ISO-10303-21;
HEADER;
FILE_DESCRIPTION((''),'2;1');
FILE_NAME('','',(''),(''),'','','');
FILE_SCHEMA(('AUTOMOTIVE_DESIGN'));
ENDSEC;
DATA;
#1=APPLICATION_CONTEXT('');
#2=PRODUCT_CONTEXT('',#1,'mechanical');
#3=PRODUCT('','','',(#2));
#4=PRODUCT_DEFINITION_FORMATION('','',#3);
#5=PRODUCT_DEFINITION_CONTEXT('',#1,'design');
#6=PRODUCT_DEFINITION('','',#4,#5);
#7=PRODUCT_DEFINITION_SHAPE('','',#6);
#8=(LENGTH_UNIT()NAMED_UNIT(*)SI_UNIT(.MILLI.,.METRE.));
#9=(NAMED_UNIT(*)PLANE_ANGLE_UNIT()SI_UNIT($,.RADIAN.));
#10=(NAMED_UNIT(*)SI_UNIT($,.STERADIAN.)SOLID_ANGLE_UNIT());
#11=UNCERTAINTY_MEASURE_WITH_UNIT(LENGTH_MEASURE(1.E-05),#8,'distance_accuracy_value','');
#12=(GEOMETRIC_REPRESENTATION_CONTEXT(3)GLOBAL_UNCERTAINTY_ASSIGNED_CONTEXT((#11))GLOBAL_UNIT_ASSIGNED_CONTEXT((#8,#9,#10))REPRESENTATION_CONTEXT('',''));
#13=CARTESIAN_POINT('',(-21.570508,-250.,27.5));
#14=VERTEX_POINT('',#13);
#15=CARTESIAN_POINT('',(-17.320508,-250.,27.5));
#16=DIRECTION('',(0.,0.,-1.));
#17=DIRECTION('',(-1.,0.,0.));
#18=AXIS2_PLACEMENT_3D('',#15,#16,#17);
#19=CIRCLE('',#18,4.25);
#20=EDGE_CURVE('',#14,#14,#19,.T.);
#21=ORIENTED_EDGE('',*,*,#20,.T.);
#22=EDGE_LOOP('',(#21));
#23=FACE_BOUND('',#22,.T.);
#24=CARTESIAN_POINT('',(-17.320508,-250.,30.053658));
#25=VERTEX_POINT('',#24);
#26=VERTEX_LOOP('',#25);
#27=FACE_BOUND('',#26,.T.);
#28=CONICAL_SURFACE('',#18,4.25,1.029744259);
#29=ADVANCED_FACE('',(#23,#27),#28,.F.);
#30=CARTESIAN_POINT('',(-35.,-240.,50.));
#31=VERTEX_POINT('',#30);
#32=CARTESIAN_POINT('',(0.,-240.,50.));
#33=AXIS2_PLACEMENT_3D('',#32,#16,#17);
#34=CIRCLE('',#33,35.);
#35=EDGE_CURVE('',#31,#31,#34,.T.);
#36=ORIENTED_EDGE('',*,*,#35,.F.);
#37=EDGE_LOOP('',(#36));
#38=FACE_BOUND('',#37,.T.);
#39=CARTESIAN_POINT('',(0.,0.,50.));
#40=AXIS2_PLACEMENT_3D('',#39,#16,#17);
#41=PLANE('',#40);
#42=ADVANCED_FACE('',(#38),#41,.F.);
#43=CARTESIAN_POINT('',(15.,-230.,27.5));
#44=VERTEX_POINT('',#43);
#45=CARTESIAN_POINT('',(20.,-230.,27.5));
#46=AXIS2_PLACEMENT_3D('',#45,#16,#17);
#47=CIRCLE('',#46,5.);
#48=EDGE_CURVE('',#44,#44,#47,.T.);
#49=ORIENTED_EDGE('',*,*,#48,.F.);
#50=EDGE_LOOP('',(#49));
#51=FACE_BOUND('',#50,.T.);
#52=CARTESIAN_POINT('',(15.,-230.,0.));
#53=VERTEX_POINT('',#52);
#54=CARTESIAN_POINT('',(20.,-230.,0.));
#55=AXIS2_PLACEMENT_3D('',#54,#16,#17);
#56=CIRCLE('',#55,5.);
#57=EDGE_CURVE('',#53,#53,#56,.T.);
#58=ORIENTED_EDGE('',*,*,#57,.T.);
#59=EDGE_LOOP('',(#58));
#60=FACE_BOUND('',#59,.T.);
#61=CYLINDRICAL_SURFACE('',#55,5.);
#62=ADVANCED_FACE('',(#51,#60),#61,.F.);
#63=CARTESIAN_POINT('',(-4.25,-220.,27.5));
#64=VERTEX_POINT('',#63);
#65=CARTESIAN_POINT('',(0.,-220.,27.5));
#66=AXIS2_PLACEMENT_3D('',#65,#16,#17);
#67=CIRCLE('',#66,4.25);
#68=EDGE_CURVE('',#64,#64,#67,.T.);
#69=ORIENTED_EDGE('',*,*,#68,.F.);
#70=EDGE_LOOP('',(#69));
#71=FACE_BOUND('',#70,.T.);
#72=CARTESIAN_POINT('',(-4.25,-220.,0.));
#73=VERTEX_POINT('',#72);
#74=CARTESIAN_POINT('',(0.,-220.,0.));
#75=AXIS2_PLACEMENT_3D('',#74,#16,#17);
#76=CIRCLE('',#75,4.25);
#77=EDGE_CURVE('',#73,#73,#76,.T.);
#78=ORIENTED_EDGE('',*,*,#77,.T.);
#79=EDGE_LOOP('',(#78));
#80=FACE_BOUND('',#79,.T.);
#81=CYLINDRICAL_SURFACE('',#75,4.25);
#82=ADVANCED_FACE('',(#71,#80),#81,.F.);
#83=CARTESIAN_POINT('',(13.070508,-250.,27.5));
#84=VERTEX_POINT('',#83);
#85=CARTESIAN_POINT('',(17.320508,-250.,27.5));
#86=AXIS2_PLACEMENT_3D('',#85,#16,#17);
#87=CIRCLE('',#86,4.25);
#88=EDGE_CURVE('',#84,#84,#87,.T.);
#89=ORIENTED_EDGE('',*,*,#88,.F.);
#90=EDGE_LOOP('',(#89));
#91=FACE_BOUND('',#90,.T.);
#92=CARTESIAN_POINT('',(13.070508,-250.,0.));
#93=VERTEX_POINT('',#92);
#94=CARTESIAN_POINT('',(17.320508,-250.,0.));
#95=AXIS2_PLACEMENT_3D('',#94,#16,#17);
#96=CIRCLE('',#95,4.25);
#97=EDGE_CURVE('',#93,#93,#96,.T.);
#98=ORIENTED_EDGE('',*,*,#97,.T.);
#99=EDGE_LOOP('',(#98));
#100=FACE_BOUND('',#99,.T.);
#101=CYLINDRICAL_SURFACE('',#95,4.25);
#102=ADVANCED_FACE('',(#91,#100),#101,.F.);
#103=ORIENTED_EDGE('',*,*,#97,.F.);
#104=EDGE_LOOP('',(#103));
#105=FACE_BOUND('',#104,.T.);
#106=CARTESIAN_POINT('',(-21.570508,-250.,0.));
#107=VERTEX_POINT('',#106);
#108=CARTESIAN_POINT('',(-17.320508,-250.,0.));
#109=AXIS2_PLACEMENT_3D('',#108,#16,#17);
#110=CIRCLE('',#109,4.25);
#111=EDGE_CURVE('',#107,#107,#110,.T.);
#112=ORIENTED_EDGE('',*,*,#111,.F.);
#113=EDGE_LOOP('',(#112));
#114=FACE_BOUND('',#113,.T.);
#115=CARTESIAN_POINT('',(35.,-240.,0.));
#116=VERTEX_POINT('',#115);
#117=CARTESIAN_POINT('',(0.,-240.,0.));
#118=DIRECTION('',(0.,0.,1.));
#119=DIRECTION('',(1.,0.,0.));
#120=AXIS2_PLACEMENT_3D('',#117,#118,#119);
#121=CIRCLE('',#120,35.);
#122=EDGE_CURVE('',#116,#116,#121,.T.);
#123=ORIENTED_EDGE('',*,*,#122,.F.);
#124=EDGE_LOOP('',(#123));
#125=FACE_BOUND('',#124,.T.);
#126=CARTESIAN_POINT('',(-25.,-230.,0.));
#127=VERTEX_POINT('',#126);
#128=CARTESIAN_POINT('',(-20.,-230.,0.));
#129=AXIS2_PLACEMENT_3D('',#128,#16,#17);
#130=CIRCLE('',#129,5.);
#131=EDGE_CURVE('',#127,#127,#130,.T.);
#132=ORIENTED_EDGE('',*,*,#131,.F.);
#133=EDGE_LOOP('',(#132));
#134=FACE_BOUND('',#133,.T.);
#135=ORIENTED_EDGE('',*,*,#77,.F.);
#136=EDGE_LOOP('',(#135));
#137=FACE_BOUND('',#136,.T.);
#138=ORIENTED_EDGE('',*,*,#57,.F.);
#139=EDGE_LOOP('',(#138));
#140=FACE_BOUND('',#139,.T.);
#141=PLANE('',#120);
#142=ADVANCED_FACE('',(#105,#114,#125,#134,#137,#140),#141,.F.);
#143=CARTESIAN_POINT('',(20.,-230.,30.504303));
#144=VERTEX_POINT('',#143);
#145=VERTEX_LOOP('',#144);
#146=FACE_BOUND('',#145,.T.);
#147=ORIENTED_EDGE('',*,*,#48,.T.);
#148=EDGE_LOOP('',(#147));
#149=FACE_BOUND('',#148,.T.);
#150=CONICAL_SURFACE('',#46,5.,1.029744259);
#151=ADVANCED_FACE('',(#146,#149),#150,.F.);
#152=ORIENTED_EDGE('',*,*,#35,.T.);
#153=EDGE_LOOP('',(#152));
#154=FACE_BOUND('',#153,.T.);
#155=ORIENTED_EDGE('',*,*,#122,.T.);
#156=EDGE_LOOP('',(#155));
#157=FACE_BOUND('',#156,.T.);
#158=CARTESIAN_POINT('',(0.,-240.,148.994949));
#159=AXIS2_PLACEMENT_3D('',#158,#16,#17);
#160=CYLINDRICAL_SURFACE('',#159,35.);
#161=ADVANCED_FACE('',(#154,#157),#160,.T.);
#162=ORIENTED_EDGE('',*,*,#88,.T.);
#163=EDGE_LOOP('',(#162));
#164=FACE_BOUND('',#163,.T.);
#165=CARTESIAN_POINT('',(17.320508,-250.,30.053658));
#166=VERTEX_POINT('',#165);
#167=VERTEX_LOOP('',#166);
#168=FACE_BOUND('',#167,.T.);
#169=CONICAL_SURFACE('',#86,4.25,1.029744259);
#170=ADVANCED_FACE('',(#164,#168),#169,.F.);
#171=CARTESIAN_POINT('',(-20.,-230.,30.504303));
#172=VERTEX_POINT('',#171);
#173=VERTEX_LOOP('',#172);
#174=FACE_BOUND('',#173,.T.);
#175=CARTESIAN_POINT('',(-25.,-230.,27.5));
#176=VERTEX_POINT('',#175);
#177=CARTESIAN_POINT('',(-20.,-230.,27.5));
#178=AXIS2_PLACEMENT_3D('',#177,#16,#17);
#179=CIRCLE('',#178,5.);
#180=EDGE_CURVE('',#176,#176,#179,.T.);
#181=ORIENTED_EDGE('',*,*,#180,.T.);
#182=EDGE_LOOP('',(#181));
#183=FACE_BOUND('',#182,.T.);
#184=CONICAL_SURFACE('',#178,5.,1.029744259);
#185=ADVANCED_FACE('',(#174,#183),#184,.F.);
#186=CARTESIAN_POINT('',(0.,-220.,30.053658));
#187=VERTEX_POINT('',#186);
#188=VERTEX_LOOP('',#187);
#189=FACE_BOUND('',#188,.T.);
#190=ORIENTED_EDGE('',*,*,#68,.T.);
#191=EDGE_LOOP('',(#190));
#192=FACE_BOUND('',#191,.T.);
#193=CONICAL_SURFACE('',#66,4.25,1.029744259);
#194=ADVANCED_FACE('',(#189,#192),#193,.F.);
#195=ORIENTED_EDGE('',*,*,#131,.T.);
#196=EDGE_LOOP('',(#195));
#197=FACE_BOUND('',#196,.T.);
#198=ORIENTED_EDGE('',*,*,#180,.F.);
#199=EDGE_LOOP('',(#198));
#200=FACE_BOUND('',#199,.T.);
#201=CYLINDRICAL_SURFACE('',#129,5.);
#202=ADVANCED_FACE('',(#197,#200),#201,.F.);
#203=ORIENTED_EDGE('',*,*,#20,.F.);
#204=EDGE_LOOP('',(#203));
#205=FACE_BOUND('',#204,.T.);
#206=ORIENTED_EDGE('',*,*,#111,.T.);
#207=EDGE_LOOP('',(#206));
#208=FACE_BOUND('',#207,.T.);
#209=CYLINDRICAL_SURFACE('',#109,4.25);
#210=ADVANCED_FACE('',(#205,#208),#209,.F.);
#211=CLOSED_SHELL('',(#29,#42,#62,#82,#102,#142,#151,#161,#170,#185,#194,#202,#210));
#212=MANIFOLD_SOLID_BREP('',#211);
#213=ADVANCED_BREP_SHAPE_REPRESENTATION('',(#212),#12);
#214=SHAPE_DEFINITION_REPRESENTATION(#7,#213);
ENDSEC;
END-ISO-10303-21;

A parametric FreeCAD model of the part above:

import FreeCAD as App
import Part
import Sketcher

V = App.Vector
Q = App.Units.Quantity

doc = App.newDocument("Part")
params = doc.addObject("Spreadsheet::Sheet", "Params")
for row, (alias, value) in enumerate([
    ("sketch1_diameter", "70 mm"),
    ("pad1_length", "50 mm"),
    ("sketch2_diameter", "8.5 mm"),
    ("hole_diameter", "8.5 mm"),
    ("hole_depth", "27.5 mm"),
    ("sketch3_diameter", "10 mm"),
    ("hole2_diameter", "10 mm"),
    ("hole2_depth", "27.5 mm"),
], start=1):
    params.set(f"A{row}", alias)
    params.set(f"B{row}", "=" + value)
    params.setAlias(f"B{row}", alias)

body = doc.addObject("PartDesign::Body", "Body")

sketch1 = body.newObject("Sketcher::SketchObject", "Sketch")
sketch1.AttachmentSupport = (doc.getObject("XY_Plane"), [""])
sketch1.MapMode = "FlatFace"
sketch1.addGeometry(Part.Circle(V(0, -240, 0), V(0, 0, 1), 35), False)
sketch1.addConstraint([
    Sketcher.Constraint("PointOnObject", 0, 3, -2),
    Sketcher.Constraint("Diameter", 0, Q("70 mm")),
    Sketcher.Constraint("DistanceY", 0, 3, -1, 1, Q("240 mm")),
])
sketch1.setExpression("Constraints[1]", "Params.sketch1_diameter")
pad1 = body.newObject("PartDesign::Pad", "Pad")
pad1.Profile = sketch1
pad1.setExpression("Length", "Params.pad1_length")

sketch2 = body.newObject("Sketcher::SketchObject", "Sketch001")
sketch2.AttachmentSupport = (doc.getObject("XY_Plane"), [""])
sketch2.MapMode = "FlatFace"
sketch2.addGeometry([
    Part.Circle(V(0, -220, 0), V(0, 0, 1), 4.2),
    Part.Circle(V(-17.3, -250, 0), V(0, 0, 1), 4.2),
    Part.Circle(V(17.3, -250, 0), V(0, 0, 1), 4.2),
], False)
sketch2.addConstraint([
    Sketcher.Constraint("Equal", 0, 1),
    Sketcher.Constraint("Equal", 1, 2),
    Sketcher.Constraint("Symmetric", 1, 3, 2, 3, -2),
    Sketcher.Constraint("PointOnObject", 0, 3, -2),
    Sketcher.Constraint("Diameter", 0, Q("8.5 mm")),
    Sketcher.Constraint("DistanceY", 0, 3, -1, 1, Q("220 mm")),
    Sketcher.Constraint("DistanceY", 1, 3, -1, 1, Q("250 mm")),
    Sketcher.Constraint("DistanceX", 1, 3, -1, 1, Q("17.320508 mm")),
])
sketch2.setExpression("Constraints[4]", "Params.sketch2_diameter")
doc.recompute()
hole = body.newObject("PartDesign::Hole", "Hole")
hole.Profile = sketch2
hole.ThreadType = "None"
hole.setExpression("Diameter", "Params.hole_diameter")
hole.DepthType = "Dimension"
hole.setExpression("Depth", "Params.hole_depth")
hole.DrillPoint = "Angled"
hole.DrillPointAngle = 118
hole.Reversed = True

sketch3 = body.newObject("Sketcher::SketchObject", "Sketch002")
sketch3.AttachmentSupport = (doc.getObject("XY_Plane"), [""])
sketch3.MapMode = "FlatFace"
sketch3.addGeometry([
    Part.Circle(V(-20, -230, 0), V(0, 0, 1), 5),
    Part.Circle(V(20, -230, 0), V(0, 0, 1), 5),
], False)
sketch3.addConstraint([
    Sketcher.Constraint("Equal", 0, 1),
    Sketcher.Constraint("Symmetric", 0, 3, 1, 3, -2),
    Sketcher.Constraint("Diameter", 0, Q("10 mm")),
    Sketcher.Constraint("DistanceX", 0, 3, -1, 1, Q("20 mm")),
    Sketcher.Constraint("DistanceY", 0, 3, -1, 1, Q("230 mm")),
])
sketch3.setExpression("Constraints[2]", "Params.sketch3_diameter")
doc.recompute()
hole2 = body.newObject("PartDesign::Hole", "Hole001")
hole2.Profile = sketch3
hole2.ThreadType = "None"
hole2.setExpression("Diameter", "Params.hole2_diameter")
hole2.DepthType = "Dimension"
hole2.setExpression("Depth", "Params.hole2_depth")
hole2.DrillPoint = "Angled"
hole2.DrillPointAngle = 118
hole2.Reversed = True

doc.recompute()
